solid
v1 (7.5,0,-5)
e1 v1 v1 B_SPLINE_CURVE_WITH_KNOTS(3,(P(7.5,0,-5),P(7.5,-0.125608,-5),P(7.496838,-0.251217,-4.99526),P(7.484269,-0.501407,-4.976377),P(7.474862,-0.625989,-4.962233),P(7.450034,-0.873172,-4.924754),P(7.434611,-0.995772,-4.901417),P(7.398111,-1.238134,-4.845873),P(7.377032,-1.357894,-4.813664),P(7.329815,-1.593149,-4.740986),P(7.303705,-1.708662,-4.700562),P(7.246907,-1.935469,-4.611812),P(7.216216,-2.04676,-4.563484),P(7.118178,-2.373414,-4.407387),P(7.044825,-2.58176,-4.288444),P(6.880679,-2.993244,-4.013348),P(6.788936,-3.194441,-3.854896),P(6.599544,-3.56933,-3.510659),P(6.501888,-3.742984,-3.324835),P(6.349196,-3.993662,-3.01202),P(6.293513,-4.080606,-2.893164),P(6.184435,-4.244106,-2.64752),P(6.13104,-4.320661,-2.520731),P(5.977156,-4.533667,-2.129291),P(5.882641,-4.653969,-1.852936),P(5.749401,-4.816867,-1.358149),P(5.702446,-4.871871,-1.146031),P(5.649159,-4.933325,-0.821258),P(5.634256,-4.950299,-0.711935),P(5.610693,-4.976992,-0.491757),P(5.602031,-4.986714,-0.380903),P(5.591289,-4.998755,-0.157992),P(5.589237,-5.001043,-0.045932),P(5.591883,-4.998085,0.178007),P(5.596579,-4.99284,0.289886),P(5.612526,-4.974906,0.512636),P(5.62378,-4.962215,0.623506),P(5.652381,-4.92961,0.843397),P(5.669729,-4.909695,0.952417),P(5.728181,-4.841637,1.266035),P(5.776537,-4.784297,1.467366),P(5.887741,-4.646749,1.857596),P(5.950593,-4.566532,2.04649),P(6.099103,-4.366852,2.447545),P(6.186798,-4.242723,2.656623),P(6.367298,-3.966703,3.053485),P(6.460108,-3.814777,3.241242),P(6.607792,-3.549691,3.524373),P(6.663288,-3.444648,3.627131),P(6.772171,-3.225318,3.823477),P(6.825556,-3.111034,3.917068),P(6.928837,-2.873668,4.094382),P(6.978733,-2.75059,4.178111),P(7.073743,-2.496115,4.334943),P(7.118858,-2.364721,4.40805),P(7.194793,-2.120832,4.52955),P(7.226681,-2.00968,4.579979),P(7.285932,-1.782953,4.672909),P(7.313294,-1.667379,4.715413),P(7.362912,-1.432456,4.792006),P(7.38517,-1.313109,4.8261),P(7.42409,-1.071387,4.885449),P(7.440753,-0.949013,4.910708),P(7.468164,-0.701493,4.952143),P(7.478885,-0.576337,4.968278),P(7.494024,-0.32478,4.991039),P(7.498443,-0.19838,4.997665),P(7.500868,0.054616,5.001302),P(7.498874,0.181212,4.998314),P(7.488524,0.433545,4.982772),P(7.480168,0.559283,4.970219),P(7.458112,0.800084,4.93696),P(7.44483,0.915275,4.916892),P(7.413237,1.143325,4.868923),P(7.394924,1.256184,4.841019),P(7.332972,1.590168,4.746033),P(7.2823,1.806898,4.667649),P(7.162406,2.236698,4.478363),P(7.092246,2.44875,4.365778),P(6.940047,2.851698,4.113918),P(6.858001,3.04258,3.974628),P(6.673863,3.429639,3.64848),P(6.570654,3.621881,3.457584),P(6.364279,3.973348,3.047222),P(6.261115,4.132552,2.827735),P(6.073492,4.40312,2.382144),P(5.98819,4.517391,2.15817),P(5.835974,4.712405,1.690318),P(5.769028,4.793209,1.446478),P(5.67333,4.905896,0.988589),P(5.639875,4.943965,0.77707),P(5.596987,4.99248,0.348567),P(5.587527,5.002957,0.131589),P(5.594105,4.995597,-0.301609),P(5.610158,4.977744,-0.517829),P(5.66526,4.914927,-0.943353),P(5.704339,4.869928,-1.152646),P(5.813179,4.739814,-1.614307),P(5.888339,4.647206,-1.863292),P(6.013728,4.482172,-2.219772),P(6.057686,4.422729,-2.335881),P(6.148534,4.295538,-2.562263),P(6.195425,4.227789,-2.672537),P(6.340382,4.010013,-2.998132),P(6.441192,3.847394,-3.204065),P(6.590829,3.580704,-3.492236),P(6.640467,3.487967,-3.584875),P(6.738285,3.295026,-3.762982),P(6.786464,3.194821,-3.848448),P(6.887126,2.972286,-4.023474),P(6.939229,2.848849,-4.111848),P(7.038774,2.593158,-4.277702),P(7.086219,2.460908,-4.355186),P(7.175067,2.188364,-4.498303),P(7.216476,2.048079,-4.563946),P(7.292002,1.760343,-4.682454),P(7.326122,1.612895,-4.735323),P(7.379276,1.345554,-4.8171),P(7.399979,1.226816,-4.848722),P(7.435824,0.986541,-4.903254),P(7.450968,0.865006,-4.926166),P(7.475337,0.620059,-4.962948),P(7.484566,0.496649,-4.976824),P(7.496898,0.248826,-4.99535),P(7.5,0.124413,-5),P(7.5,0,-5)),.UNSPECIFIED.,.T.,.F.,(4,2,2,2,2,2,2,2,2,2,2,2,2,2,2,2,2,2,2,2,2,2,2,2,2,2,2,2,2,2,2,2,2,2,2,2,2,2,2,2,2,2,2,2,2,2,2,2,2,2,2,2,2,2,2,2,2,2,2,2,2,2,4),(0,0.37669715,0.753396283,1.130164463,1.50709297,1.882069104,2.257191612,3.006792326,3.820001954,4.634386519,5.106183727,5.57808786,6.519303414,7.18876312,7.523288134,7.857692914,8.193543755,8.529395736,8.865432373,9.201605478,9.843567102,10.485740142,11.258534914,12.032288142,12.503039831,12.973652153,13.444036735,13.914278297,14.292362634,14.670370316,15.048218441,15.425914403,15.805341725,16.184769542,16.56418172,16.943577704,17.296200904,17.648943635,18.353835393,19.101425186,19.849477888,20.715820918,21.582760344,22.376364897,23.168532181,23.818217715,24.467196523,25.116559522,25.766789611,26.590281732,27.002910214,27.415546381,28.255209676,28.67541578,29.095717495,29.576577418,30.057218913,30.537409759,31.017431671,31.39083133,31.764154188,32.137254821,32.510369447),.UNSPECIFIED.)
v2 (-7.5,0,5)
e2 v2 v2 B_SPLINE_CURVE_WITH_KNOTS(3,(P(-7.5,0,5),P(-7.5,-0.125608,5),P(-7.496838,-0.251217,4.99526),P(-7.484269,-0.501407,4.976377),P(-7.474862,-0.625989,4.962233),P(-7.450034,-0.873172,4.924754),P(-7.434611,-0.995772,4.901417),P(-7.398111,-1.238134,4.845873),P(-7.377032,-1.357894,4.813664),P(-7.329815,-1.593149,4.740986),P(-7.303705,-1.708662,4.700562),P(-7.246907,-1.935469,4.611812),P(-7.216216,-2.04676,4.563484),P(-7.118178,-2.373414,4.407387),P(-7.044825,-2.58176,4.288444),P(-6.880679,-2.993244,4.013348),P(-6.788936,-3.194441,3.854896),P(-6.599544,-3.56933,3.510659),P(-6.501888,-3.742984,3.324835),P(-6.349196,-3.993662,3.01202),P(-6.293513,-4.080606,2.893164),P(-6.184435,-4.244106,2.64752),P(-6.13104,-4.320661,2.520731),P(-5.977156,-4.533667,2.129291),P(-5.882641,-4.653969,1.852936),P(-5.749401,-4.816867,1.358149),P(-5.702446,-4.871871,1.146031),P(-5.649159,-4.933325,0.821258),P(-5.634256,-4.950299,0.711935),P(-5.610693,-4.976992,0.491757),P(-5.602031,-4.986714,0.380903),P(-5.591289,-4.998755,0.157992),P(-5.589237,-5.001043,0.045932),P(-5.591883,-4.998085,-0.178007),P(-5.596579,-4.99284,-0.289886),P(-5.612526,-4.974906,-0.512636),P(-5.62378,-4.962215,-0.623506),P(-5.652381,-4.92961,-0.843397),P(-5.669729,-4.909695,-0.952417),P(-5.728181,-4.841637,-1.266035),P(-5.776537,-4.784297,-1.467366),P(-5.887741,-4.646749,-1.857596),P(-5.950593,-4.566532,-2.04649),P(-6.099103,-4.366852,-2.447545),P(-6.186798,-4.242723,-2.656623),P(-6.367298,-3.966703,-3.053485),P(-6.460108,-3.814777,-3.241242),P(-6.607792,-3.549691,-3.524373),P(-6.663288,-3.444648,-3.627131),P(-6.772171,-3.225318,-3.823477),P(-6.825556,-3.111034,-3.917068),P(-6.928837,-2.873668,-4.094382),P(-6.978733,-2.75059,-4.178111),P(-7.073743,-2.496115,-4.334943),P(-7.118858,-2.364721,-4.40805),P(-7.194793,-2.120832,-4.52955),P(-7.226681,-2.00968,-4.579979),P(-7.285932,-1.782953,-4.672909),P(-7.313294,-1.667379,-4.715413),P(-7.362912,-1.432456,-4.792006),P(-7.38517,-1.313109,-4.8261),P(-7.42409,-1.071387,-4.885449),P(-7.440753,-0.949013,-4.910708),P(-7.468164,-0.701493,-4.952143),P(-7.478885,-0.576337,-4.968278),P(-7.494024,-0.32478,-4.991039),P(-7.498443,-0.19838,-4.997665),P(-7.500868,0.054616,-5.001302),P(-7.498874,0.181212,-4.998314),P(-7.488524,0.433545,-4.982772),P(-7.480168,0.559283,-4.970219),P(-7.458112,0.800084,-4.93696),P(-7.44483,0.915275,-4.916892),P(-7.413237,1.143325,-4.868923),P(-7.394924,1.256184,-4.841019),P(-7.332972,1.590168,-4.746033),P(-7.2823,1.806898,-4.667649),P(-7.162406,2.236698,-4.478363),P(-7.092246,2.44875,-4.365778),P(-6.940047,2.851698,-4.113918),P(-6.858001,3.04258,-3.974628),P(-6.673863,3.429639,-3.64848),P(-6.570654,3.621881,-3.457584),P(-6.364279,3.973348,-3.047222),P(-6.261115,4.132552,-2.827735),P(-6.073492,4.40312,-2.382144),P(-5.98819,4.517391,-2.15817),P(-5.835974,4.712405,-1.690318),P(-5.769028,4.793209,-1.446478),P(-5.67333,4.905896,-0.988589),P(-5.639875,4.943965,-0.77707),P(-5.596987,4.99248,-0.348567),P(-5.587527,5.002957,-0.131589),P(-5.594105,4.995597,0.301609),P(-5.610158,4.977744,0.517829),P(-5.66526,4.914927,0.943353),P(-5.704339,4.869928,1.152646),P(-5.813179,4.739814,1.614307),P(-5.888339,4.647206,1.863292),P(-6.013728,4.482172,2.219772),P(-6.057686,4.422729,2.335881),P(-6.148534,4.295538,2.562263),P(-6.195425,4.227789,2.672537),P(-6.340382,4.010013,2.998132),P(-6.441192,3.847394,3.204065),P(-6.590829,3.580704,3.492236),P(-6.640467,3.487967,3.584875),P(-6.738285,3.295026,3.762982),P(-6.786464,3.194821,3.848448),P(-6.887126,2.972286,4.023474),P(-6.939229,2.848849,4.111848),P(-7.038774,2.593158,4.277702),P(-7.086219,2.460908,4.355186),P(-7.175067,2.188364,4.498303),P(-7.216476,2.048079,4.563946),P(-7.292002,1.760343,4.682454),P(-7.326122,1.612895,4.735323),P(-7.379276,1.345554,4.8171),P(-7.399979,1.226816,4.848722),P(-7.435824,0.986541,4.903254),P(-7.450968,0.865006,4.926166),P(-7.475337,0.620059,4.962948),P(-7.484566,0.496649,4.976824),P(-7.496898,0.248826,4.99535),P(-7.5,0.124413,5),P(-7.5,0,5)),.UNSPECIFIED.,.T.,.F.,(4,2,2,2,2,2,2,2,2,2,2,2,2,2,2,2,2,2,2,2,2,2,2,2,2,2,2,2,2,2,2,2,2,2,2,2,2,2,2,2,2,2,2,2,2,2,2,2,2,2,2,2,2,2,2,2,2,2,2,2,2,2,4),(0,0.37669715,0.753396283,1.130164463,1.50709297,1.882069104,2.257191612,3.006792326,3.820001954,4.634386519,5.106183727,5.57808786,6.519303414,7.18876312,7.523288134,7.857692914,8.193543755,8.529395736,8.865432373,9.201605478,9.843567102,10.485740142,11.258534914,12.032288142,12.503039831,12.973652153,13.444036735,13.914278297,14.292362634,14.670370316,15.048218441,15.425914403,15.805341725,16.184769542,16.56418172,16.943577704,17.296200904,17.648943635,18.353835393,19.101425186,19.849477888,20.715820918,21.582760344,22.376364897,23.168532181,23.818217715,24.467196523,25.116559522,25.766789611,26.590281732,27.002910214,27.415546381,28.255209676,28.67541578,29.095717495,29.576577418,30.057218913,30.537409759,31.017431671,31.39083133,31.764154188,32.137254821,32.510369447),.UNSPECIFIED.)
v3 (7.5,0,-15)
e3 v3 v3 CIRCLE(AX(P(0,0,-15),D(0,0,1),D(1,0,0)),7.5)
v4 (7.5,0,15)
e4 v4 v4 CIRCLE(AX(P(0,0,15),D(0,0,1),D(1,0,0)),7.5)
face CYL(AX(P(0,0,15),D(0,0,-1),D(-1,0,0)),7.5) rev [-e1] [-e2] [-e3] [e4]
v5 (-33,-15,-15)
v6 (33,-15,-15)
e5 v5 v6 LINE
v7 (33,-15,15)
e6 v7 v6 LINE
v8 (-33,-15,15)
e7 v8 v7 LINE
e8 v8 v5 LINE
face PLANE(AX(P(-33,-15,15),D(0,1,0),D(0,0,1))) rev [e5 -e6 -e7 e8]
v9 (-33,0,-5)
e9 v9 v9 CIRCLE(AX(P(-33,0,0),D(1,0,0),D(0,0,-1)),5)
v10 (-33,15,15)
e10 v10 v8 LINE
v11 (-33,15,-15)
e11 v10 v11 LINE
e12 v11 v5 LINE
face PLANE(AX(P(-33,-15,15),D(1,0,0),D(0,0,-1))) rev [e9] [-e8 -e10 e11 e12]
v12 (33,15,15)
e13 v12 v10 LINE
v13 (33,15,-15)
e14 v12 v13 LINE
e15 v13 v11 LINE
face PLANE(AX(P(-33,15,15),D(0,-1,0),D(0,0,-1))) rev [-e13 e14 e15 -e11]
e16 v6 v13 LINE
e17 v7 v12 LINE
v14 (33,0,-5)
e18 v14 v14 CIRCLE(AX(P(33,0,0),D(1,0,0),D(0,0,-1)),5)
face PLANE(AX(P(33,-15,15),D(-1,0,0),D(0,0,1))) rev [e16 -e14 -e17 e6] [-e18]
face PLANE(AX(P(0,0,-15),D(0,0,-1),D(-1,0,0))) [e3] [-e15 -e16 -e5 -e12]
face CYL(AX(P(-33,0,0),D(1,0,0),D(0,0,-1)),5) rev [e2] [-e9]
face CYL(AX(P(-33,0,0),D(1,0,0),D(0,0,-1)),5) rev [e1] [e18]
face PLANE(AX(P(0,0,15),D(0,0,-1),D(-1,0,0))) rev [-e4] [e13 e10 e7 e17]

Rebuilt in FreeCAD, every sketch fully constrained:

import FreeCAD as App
import Part
import Sketcher
from FreeCAD import Vector
Q = App.Units.Quantity

doc = App.newDocument("Part")
body = doc.addObject("PartDesign::Body", "Body")

sketch1 = body.newObject("Sketcher::SketchObject", "Sketch")
sketch1.AttachmentSupport = (doc.getObject("XY_Plane"), [""])
sketch1.MapMode = "FlatFace"
sketch1.addGeometry(Part.LineSegment(Vector(-33, 15, 0), Vector(-33, -15, 0)), False)
sketch1.addGeometry(Part.LineSegment(Vector(-33, -15, 0), Vector(33, -15, 0)), False)
sketch1.addGeometry(Part.LineSegment(Vector(33, -15, 0), Vector(33, 15, 0)), False)
sketch1.addGeometry(Part.LineSegment(Vector(33, 15, 0), Vector(-33, 15, 0)), False)
sketch1.addGeometry(Part.Circle(Vector(0, 0, 0), Vector(0, 0, 1), 8), False)
sketch1.addConstraint(Sketcher.Constraint("Coincident", 0, 2, 1, 1))
sketch1.addConstraint(Sketcher.Constraint("Coincident", 1, 2, 2, 1))
sketch1.addConstraint(Sketcher.Constraint("Coincident", 2, 2, 3, 1))
sketch1.addConstraint(Sketcher.Constraint("Coincident", 3, 2, 0, 1))
sketch1.addConstraint(Sketcher.Constraint("Vertical", 0))
sketch1.addConstraint(Sketcher.Constraint("Horizontal", 1))
sketch1.addConstraint(Sketcher.Constraint("Vertical", 2))
sketch1.addConstraint(Sketcher.Constraint("Horizontal", 3))
sketch1.addConstraint(Sketcher.Constraint("Coincident", 4, 3, -1, 1))
sketch1.addConstraint(Sketcher.Constraint("Symmetric", 0, 2, 2, 2, -1, 1))
sketch1.addConstraint(Sketcher.Constraint("Diameter", 4, Q("15 mm")))
sketch1.addConstraint(Sketcher.Constraint("DistanceX", 1, 1, 1, 2, Q("66 mm")))
sketch1.addConstraint(Sketcher.Constraint("DistanceY", 0, 2, 0, 1, Q("30 mm")))
pad1 = body.newObject("PartDesign::Pad", "Pad")
pad1.Profile = sketch1
pad1.Length = 30
pad1.Midplane = True

sketch2 = body.newObject("Sketcher::SketchObject", "Sketch001")
sketch2.AttachmentSupport = (doc.getObject("YZ_Plane"), [""])
sketch2.MapMode = "FlatFace"
sketch2.AttachmentOffset = App.Placement(Vector(0, 0, 33), App.Rotation())
sketch2.addGeometry(Part.Circle(Vector(0, 0, 0), Vector(0, 0, 1), 5), False)
sketch2.addConstraint(Sketcher.Constraint("Coincident", 0, 3, -1, 1))
sketch2.addConstraint(Sketcher.Constraint("Diameter", 0, Q("10 mm")))
pocket1 = body.newObject("PartDesign::Pocket", "Pocket")
pocket1.Profile = sketch2
pocket1.Type = "ThroughAll"

doc.recompute()
